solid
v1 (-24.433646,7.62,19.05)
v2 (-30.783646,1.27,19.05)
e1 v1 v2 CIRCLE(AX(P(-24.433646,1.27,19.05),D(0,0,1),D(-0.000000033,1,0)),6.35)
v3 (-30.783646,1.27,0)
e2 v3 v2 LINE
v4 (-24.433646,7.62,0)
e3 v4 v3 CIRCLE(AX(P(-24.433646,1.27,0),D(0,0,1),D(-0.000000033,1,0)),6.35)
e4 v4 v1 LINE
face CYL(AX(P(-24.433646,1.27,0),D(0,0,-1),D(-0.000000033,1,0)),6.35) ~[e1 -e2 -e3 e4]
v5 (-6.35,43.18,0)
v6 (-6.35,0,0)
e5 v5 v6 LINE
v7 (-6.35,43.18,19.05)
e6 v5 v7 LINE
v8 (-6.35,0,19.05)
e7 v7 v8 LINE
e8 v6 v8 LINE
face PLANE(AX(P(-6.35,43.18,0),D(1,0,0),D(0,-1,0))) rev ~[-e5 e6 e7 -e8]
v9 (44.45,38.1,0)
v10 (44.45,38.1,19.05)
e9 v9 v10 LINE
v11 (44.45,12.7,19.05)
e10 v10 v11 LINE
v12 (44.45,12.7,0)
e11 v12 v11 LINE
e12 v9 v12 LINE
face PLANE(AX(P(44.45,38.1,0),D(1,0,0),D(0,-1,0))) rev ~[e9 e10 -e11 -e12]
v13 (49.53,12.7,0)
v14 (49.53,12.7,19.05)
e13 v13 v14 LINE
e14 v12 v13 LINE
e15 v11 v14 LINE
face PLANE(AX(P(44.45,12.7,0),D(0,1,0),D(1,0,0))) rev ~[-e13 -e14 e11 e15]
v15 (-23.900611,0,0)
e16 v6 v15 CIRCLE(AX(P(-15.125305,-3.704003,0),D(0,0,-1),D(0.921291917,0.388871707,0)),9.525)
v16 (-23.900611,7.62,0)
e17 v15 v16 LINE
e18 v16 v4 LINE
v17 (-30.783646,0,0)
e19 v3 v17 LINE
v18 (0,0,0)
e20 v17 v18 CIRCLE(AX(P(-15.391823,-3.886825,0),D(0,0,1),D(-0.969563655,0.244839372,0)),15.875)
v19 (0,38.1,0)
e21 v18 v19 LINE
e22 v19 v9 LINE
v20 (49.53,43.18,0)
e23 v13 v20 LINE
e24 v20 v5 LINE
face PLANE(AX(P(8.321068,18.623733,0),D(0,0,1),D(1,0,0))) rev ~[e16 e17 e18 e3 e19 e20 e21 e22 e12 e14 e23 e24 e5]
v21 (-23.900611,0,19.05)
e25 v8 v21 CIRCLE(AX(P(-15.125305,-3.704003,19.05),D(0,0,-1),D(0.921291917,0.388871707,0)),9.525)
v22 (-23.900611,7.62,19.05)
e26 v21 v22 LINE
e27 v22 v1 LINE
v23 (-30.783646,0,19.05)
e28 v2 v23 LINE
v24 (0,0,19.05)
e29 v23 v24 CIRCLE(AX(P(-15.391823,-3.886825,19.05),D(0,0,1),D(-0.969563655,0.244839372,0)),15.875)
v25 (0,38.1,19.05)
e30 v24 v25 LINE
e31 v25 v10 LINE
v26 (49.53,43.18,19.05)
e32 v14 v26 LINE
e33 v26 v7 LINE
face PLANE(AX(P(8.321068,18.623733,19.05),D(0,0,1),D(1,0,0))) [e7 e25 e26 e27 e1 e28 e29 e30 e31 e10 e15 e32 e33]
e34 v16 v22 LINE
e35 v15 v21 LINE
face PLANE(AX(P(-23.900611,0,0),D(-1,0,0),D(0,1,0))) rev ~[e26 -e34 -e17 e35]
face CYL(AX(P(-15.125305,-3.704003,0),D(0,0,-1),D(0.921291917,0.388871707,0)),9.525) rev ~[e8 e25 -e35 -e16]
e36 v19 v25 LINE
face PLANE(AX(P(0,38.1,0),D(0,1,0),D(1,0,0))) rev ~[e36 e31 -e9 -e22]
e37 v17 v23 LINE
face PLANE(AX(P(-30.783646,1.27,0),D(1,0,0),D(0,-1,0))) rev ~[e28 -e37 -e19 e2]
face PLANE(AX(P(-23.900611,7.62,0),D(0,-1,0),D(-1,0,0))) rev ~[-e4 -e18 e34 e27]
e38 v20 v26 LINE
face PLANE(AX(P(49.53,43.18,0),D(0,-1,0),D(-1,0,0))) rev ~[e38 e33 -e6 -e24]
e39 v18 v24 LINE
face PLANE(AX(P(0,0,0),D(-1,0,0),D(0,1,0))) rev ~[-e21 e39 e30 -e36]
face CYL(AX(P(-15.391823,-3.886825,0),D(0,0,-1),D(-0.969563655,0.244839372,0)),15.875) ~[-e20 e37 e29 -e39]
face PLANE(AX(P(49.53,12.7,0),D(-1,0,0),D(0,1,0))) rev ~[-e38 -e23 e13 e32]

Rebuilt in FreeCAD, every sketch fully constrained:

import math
import FreeCAD as App
import Part
import Sketcher
Q = App.Units.Quantity

doc = App.newDocument("Part")
body = doc.addObject("PartDesign::Body", "Body")

sketch1 = doc.addObject("Sketcher::SketchObject", "Sketch")
body.addObject(sketch1)
sketch1.AttachmentSupport = (doc.XY_Plane, [""])
sketch1.MapMode = "FlatFace"
sketch1.addGeometry(Part.LineSegment(App.Vector(-30.8, 1.3, 0), App.Vector(-30.8, 0, 0)), False)
sketch1.addGeometry(Part.ArcOfCircle(Part.Circle(App.Vector(-15.4, -3.9, 0), App.Vector(0, 0, 1), 15.9), math.radians(166), math.radians(374)), False)
sketch1.addGeometry(Part.LineSegment(App.Vector(0, 0, 0), App.Vector(0, 38.1, 0)), False)
sketch1.addGeometry(Part.LineSegment(App.Vector(0, 38.1, 0), App.Vector(44.5, 38.1, 0)), False)
sketch1.addGeometry(Part.LineSegment(App.Vector(44.5, 38.1, 0), App.Vector(44.5, 12.7, 0)), False)
sketch1.addGeometry(Part.LineSegment(App.Vector(44.5, 12.7, 0), App.Vector(49.5, 12.7, 0)), False)
sketch1.addGeometry(Part.LineSegment(App.Vector(49.5, 12.7, 0), App.Vector(49.5, 43.2, 0)), False)
sketch1.addGeometry(Part.LineSegment(App.Vector(49.5, 43.2, 0), App.Vector(-6.3, 43.2, 0)), False)
sketch1.addGeometry(Part.LineSegment(App.Vector(-6.3, 43.2, 0), App.Vector(-6.3, 0, 0)), False)
sketch1.addGeometry(Part.ArcOfCircle(Part.Circle(App.Vector(-15.1, -3.7, 0), App.Vector(0, 0, 1), 9.5), math.radians(157), math.radians(383)), False)
sketch1.addGeometry(Part.LineSegment(App.Vector(-23.9, 0, 0), App.Vector(-23.9, 7.6, 0)), False)
sketch1.addGeometry(Part.LineSegment(App.Vector(-23.9, 7.6, 0), App.Vector(-24.4, 7.6, 0)), False)
sketch1.addGeometry(Part.ArcOfCircle(Part.Circle(App.Vector(-24.4, 1.3, 0), App.Vector(0, 0, 1), 6.4), math.radians(90), math.radians(180)), False)
sketch1.addConstraint(Sketcher.Constraint("Coincident", 0, 2, 1, 1))
sketch1.addConstraint(Sketcher.Constraint("Coincident", 1, 2, 2, 1))
sketch1.addConstraint(Sketcher.Constraint("Coincident", 2, 2, 3, 1))
sketch1.addConstraint(Sketcher.Constraint("Coincident", 3, 2, 4, 1))
sketch1.addConstraint(Sketcher.Constraint("Coincident", 4, 2, 5, 1))
sketch1.addConstraint(Sketcher.Constraint("Coincident", 5, 2, 6, 1))
sketch1.addConstraint(Sketcher.Constraint("Coincident", 6, 2, 7, 1))
sketch1.addConstraint(Sketcher.Constraint("Coincident", 7, 2, 8, 1))
sketch1.addConstraint(Sketcher.Constraint("Coincident", 8, 2, 9, 2))
sketch1.addConstraint(Sketcher.Constraint("Coincident", 9, 1, 10, 1))
sketch1.addConstraint(Sketcher.Constraint("Coincident", 10, 2, 11, 1))
sketch1.addConstraint(Sketcher.Constraint("Tangent", 11, 2, 12, 1))
sketch1.addConstraint(Sketcher.Constraint("Tangent", 12, 2, 0, 1))
sketch1.addConstraint(Sketcher.Constraint("Vertical", 0))
sketch1.addConstraint(Sketcher.Constraint("Vertical", 2))
sketch1.addConstraint(Sketcher.Constraint("Horizontal", 3))
sketch1.addConstraint(Sketcher.Constraint("Vertical", 4))
sketch1.addConstraint(Sketcher.Constraint("Horizontal", 5))
sketch1.addConstraint(Sketcher.Constraint("Vertical", 6))
sketch1.addConstraint(Sketcher.Constraint("Horizontal", 7))
sketch1.addConstraint(Sketcher.Constraint("Vertical", 8))
sketch1.addConstraint(Sketcher.Constraint("Vertical", 10))
sketch1.addConstraint(Sketcher.Constraint("Horizontal", 11))
sketch1.addConstraint(Sketcher.Constraint("Coincident", 1, 2, -1, 1))
sketch1.addConstraint(Sketcher.Constraint("PointOnObject", 0, 2, -1))
sketch1.addConstraint(Sketcher.Constraint("PointOnObject", 8, 2, -1))
sketch1.addConstraint(Sketcher.Constraint("PointOnObject", 9, 1, -1))
sketch1.addConstraint(Sketcher.Constraint("DistanceY", 4, 2, 4, 1, Q("1 in")))
sketch1.addConstraint(Sketcher.Constraint("Radius", 12, Q("0.25 in")))
sketch1.addConstraint(Sketcher.Constraint("DistanceX", 5, 1, 5, 2, Q("0.2 in")))
sketch1.addConstraint(Sketcher.Constraint("DistanceX", 7, 2, 7, 1, Q("2.2 in")))
sketch1.addConstraint(Sketcher.Constraint("DistanceY", 2, 1, 2, 2, Q("1.5 in")))
sketch1.addConstraint(Sketcher.Constraint("DistanceY", 6, 1, 6, 2, Q("1.2 in")))
sketch1.addConstraint(Sketcher.Constraint("DistanceY", 10, 1, 10, 2, Q("0.3 in")))
sketch1.addConstraint(Sketcher.Constraint("Radius", 1, Q("0.625 in")))
sketch1.addConstraint(Sketcher.Constraint("Radius", 9, Q("0.375 in")))
sketch1.addConstraint(Sketcher.Constraint("DistanceX", 3, 1, 3, 2, Q("1.75 in")))
sketch1.addConstraint(Sketcher.Constraint("DistanceX", 11, 2, 11, 1, Q("0.533035 mm")))
sketch1.addConstraint(Sketcher.Constraint("DistanceX", 9, 1, -1, 1, Q("23.900611 mm")))
pad1 = doc.addObject("PartDesign::Pad", "Pad")
body.addObject(pad1)
pad1.Profile = sketch1
pad1.Length = Q("0.75 in")

doc.recompute()
